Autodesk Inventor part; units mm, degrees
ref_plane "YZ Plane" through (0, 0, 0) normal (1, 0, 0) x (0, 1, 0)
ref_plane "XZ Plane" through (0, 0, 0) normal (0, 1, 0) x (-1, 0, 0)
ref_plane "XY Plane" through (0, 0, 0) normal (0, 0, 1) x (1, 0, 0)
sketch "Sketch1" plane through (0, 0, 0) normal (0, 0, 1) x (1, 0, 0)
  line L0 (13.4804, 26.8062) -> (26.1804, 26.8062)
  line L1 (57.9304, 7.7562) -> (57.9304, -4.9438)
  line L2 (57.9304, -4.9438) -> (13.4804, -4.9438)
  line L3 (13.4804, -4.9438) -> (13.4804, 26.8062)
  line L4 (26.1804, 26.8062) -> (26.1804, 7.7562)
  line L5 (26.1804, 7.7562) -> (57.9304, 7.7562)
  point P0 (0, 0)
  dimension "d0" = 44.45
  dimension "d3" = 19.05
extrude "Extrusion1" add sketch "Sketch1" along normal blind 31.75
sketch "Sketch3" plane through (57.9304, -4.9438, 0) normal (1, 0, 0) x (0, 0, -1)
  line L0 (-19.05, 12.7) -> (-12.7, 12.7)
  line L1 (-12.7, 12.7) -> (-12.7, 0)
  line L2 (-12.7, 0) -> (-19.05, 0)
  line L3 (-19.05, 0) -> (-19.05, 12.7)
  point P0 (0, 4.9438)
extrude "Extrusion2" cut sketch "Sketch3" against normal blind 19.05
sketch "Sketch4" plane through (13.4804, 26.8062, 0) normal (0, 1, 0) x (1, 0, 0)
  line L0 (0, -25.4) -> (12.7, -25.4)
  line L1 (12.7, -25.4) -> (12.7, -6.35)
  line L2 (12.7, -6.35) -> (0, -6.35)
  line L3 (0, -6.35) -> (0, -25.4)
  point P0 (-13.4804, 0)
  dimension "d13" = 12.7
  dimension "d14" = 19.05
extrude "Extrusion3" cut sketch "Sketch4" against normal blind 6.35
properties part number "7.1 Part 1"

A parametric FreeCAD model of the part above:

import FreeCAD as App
import Part
import Sketcher
Q = App.Units.Quantity


def add_polygon(sketch, points):
    """Adds a closed chain of lines whose ends are joined by coincident constraints."""
    first, n = sketch.GeometryCount, len(points)
    for a, b in zip(points, points[1:] + points[:1]):
        sketch.addGeometry(Part.LineSegment(App.Vector(*a, 0), App.Vector(*b, 0)), False)
    for i in range(n):
        sketch.addConstraint(Sketcher.Constraint("Coincident", first + i, 2, first + (i + 1) % n, 1))

doc = App.newDocument("Part")
body = doc.addObject("PartDesign::Body", "Body")

sketch1 = doc.addObject("Sketcher::SketchObject", "Sketch")
body.addObject(sketch1)
sketch1.AttachmentSupport = (doc.XY_Plane, [""])
sketch1.MapMode = "FlatFace"
add_polygon(sketch1, [(26, 27), (13, 27), (13, -5), (58, -5), (58, 8), (26, 8)])
sketch1.addConstraint(Sketcher.Constraint("Horizontal", 0))
sketch1.addConstraint(Sketcher.Constraint("Vertical", 1))
sketch1.addConstraint(Sketcher.Constraint("Horizontal", 2))
sketch1.addConstraint(Sketcher.Constraint("Vertical", 3))
sketch1.addConstraint(Sketcher.Constraint("Horizontal", 4))
sketch1.addConstraint(Sketcher.Constraint("Vertical", 5))
sketch1.addConstraint(Sketcher.Constraint("Equal", 4, 1))
sketch1.addConstraint(Sketcher.Constraint("Equal", 0, 3))
sketch1.addConstraint(Sketcher.Constraint("DistanceX", 2, 1, 2, 2, Q("1.75 in")))
sketch1.addConstraint(Sketcher.Constraint("DistanceY", 5, 1, 5, 2, Q("0.75 in")))
sketch1.addConstraint(Sketcher.Constraint("DistanceX", -1, 1, 0, 2, Q("13.4804 mm")))
sketch1.addConstraint(Sketcher.Constraint("DistanceY", -1, 1, 0, 2, Q("26.8062 mm")))
pad1 = doc.addObject("PartDesign::Pad", "Pad")
body.addObject(pad1)
pad1.Profile = sketch1
pad1.Length = Q("1.25 in")

sketch2 = doc.addObject("Sketcher::SketchObject", "Sketch001")
body.addObject(sketch2)
sketch2.AttachmentSupport = (doc.YZ_Plane, [""])
sketch2.MapMode = "FlatFace"
sketch2.AttachmentOffset = App.Placement(App.Vector(0, 0, 57.9304), App.Rotation())
add_polygon(sketch2, [(8, 13), (8, 19), (-5, 19), (-5, 13)])
sketch2.addConstraint(Sketcher.Constraint("Vertical", 0))
sketch2.addConstraint(Sketcher.Constraint("Horizontal", 1))
sketch2.addConstraint(Sketcher.Constraint("Vertical", 2))
sketch2.addConstraint(Sketcher.Constraint("Horizontal", 3))
sketch2.addConstraint(Sketcher.Constraint("DistanceX", 1, 2, 1, 1, Q("0.5 in")))
sketch2.addConstraint(Sketcher.Constraint("DistanceY", 0, 1, 0, 2, Q("0.25 in")))
sketch2.addConstraint(Sketcher.Constraint("DistanceY", -1, 1, 2, 2, Q("0.5 in")))
sketch2.addConstraint(Sketcher.Constraint("DistanceX", -1, 1, 0, 2, Q("7.7562 mm")))
pocket1 = doc.addObject("PartDesign::Pocket", "Pocket")
body.addObject(pocket1)
pocket1.Profile = sketch2
pocket1.Length = Q("0.75 in")

sketch3 = doc.addObject("Sketcher::SketchObject", "Sketch002")
body.addObject(sketch3)
sketch3.AttachmentSupport = (doc.XZ_Plane, [""])
sketch3.MapMode = "FlatFace"
sketch3.AttachmentOffset = App.Placement(App.Vector(0, 0, -26.8062), App.Rotation())
add_polygon(sketch3, [(13, 6), (13, 25), (26, 25), (26, 6)])
sketch3.addConstraint(Sketcher.Constraint("Vertical", 0))
sketch3.addConstraint(Sketcher.Constraint("Horizontal", 1))
sketch3.addConstraint(Sketcher.Constraint("Vertical", 2))
sketch3.addConstraint(Sketcher.Constraint("Horizontal", 3))
sketch3.addConstraint(Sketcher.Constraint("DistanceX", 1, 1, 1, 2, Q("0.5 in")))
sketch3.addConstraint(Sketcher.Constraint("DistanceY", 0, 1, 0, 2, Q("0.75 in")))
sketch3.addConstraint(Sketcher.Constraint("DistanceY", -1, 1, 0, 2, Q("1 in")))
sketch3.addConstraint(Sketcher.Constraint("DistanceX", -1, 1, 0, 2, Q("13.4804 mm")))
pocket2 = doc.addObject("PartDesign::Pocket", "Pocket001")
body.addObject(pocket2)
pocket2.Profile = sketch3
pocket2.Length = Q("0.25 in")
pocket2.Reversed = True

doc.recompute()
